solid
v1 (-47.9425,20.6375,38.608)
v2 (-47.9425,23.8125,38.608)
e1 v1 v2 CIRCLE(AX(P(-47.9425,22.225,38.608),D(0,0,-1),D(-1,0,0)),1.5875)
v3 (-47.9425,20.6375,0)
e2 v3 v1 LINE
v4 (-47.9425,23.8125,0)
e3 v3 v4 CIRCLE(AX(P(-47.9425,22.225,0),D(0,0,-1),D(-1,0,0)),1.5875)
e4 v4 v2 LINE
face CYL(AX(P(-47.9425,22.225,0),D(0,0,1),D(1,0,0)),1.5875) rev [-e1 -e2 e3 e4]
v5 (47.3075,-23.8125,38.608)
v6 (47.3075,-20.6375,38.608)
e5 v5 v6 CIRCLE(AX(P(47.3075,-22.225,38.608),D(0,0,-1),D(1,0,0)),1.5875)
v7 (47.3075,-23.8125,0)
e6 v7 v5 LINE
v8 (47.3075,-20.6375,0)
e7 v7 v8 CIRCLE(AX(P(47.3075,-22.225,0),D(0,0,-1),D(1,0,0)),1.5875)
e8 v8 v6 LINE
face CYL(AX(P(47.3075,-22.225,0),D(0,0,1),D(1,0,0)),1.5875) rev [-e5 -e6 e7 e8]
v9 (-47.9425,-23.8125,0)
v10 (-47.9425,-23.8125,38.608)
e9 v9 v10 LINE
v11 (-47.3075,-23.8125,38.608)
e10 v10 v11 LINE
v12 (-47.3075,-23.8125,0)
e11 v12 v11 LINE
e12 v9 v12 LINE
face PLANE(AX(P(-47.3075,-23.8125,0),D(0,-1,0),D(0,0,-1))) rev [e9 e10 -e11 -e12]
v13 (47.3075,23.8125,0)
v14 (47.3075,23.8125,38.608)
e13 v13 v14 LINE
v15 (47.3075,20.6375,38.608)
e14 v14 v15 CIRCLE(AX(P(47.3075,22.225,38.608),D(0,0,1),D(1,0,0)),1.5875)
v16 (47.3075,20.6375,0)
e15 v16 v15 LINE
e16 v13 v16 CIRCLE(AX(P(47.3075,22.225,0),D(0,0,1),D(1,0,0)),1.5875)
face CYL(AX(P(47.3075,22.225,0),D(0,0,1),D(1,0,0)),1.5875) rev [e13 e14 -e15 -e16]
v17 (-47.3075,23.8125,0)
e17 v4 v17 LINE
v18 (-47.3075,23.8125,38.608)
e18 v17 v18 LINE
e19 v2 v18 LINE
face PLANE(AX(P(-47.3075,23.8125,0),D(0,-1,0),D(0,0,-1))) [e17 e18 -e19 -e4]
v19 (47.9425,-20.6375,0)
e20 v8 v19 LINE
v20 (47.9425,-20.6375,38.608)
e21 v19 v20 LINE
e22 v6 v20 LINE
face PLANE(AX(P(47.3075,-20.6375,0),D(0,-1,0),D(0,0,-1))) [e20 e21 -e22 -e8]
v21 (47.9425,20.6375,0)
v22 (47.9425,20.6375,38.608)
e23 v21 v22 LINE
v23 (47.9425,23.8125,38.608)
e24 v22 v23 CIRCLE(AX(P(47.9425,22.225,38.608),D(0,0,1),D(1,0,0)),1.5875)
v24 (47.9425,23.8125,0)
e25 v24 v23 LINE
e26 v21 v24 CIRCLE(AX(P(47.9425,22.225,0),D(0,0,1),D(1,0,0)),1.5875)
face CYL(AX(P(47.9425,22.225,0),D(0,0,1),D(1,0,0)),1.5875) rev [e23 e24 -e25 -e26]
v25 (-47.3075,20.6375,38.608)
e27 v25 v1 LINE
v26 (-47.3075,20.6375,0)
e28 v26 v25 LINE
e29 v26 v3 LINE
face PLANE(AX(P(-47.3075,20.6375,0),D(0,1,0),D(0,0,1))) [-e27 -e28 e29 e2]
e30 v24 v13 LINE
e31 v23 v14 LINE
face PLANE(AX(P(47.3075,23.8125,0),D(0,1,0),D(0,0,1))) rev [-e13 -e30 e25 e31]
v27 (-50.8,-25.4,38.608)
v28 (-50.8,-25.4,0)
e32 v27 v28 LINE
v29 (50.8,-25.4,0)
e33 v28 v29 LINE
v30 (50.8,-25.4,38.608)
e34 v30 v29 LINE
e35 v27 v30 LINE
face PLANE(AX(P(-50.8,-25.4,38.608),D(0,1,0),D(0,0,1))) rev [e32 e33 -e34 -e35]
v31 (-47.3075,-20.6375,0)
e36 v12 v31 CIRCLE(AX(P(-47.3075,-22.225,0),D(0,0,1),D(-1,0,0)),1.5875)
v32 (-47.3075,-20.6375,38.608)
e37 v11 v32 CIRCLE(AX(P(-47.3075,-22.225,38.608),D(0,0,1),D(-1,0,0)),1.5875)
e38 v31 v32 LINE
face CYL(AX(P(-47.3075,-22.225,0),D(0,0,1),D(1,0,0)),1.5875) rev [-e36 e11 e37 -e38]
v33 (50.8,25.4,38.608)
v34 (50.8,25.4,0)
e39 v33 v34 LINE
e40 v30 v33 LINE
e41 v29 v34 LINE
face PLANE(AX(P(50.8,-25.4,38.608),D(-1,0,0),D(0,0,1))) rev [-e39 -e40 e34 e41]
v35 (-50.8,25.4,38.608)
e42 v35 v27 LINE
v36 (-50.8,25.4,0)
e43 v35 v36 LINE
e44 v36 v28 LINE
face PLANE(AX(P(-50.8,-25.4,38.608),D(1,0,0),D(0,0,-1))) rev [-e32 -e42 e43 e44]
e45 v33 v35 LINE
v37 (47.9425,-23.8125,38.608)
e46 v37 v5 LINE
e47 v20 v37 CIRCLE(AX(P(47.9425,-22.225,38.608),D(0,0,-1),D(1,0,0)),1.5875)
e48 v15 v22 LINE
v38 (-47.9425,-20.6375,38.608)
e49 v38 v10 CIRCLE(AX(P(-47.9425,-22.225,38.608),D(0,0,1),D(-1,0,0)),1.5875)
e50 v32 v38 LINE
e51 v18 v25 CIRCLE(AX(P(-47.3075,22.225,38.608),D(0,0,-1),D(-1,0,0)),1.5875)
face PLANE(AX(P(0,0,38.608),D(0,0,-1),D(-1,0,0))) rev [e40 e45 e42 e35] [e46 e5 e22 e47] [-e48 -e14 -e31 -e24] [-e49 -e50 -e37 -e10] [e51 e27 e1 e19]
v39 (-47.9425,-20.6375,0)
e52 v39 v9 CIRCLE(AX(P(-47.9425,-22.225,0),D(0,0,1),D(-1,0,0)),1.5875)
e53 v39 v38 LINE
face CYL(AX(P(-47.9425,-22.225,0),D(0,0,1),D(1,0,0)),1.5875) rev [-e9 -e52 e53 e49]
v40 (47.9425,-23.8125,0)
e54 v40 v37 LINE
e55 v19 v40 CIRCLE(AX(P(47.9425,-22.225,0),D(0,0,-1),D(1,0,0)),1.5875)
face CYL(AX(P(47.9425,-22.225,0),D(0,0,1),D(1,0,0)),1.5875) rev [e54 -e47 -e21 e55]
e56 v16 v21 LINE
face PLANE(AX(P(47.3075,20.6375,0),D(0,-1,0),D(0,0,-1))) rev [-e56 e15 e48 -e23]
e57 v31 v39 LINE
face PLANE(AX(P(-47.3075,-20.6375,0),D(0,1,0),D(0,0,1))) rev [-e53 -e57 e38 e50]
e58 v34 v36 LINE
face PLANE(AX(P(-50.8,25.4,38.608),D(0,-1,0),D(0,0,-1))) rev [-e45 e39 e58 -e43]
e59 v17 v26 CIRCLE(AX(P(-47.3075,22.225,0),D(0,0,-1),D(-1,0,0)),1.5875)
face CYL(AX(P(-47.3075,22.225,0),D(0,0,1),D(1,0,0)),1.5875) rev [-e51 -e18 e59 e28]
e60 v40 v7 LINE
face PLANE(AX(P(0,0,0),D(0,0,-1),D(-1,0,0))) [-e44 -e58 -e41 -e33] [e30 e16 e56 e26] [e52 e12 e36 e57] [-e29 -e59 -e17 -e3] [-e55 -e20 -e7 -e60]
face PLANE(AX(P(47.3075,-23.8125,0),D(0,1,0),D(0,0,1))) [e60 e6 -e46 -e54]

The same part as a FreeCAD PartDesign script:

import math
import FreeCAD as App
import Part
import Sketcher

V = App.Vector
Q = App.Units.Quantity


def add_polygon(sketch, points):
    """Adds a closed chain of lines whose ends are joined by coincident constraints."""
    first, n = sketch.GeometryCount, len(points)
    for a, b in zip(points, points[1:] + points[:1]):
        sketch.addGeometry(Part.LineSegment(App.Vector(*a, 0), App.Vector(*b, 0)), False)
    for i in range(n):
        sketch.addConstraint(Sketcher.Constraint("Coincident", first + i, 2, first + (i + 1) % n, 1))

doc = App.newDocument("Part")
body = doc.addObject("PartDesign::Body", "Body")

# Sketch on XY plane
sketch1 = body.newObject("Sketcher::SketchObject", "Sketch")
sketch1.AttachmentSupport = (doc.getObject("XY_Plane"), [""])
sketch1.MapMode = "FlatFace"
add_polygon(sketch1, [(-51, 25), (-51, -25), (51, -25), (51, 25)])  # lines 0-3
sketch1.addConstraint([
    Sketcher.Constraint("Vertical", 0),
    Sketcher.Constraint("Horizontal", 1),
    Sketcher.Constraint("Vertical", 2),
    Sketcher.Constraint("Horizontal", 3),
    Sketcher.Constraint("Symmetric", 0, 2, 2, 2, -1, 1),
    Sketcher.Constraint("DistanceX", 1, 1, 1, 2, Q("4 in")),
    Sketcher.Constraint("DistanceY", 0, 2, 0, 1, Q("2 in")),
])
pad1 = body.newObject("PartDesign::Pad", "Pad")
pad1.Profile = sketch1
pad1.Length = Q("1.52 in")

# Sketch on XY plane
sketch2 = body.newObject("Sketcher::SketchObject", "Sketch001")
sketch2.AttachmentSupport = (doc.getObject("XY_Plane"), [""])
sketch2.MapMode = "FlatFace"
sketch2.AttachmentOffset = App.Placement(V(0, 0, 1.52 * 25.4), App.Rotation())
sketch2.addGeometry([
    Part.LineSegment(V(47.9, 23.8, 0), V(47.3, 23.8, 0)),
    Part.ArcOfCircle(Part.Circle(V(47.3, 22.2, 0), V(0, 0, 1), 1.6), math.radians(90), math.radians(270)),
    Part.LineSegment(V(47.3, 20.6, 0), V(47.9, 20.6, 0)),
    Part.ArcOfCircle(Part.Circle(V(47.9, 22.2, 0), V(0, 0, 1), 1.6), math.radians(-90), math.radians(90)),
], False)
sketch2.addConstraint([
    Sketcher.Constraint("Tangent", 0, 2, 1, 1),
    Sketcher.Constraint("Tangent", 1, 2, 2, 1),
    Sketcher.Constraint("Tangent", 2, 2, 3, 1),
    Sketcher.Constraint("Tangent", 3, 2, 0, 1),
    Sketcher.Constraint("Horizontal", 0),
    Sketcher.Constraint("Horizontal", 2),
    Sketcher.Constraint("Radius", 1, Q("0.0625 in")),
    Sketcher.Constraint("DistanceX", 0, 2, 0, 1, Q("0.025 in")),
    Sketcher.Constraint("DistanceY", -1, 1, 1, 3, Q("0.875 in")),
    Sketcher.Constraint("DistanceX", -1, 1, 1, 3, Q("1.8625 in")),
])
pocket1 = body.newObject("PartDesign::Pocket", "Pocket")
pocket1.Profile = sketch2
pocket1.Type = "ThroughAll"
doc.recompute()

mirrored = body.newObject("PartDesign::Mirrored", "Mirrored")
mirrored.Originals = [pocket1]
mirrored.MirrorPlane = (doc.getObject("XZ_Plane"), [""])
body.Tip = mirrored
doc.recompute()

mirrored2 = body.newObject("PartDesign::Mirrored", "Mirrored001")
mirrored2.Originals = [pocket1]
mirrored2.MirrorPlane = (doc.getObject("YZ_Plane"), [""])
body.Tip = mirrored2

# Sketch on XY plane
sketch3 = body.newObject("Sketcher::SketchObject", "Sketch002")
sketch3.AttachmentSupport = (doc.getObject("XY_Plane"), [""])
sketch3.MapMode = "FlatFace"
sketch3.AttachmentOffset = App.Placement(V(0, 0, 1.52 * 25.4), App.Rotation())
sketch3.addGeometry([
    Part.LineSegment(V(-47.9, -23.8, 0), V(-47.3, -23.8, 0)),
    Part.ArcOfCircle(Part.Circle(V(-47.3, -22.2, 0), V(0, 0, 1), 1.6), math.radians(-90), math.radians(90)),
    Part.LineSegment(V(-47.3, -20.6, 0), V(-47.9, -20.6, 0)),
    Part.ArcOfCircle(Part.Circle(V(-47.9, -22.2, 0), V(0, 0, 1), 1.6), math.radians(90), math.radians(270)),
], False)
sketch3.addConstraint([
    Sketcher.Constraint("Tangent", 0, 2, 1, 1),
    Sketcher.Constraint("Tangent", 1, 2, 2, 1),
    Sketcher.Constraint("Tangent", 2, 2, 3, 1),
    Sketcher.Constraint("Tangent", 3, 2, 0, 1),
    Sketcher.Constraint("Horizontal", 0),
    Sketcher.Constraint("Horizontal", 2),
    Sketcher.Constraint("Radius", 1, Q("0.0625 in")),
    Sketcher.Constraint("DistanceX", 0, 1, 0, 2, Q("0.025 in")),
    Sketcher.Constraint("DistanceY", 1, 3, -1, 1, Q("0.875 in")),
    Sketcher.Constraint("DistanceX", 1, 3, -1, 1, Q("1.8625 in")),
])
pocket2 = body.newObject("PartDesign::Pocket", "Pocket001")
pocket2.Profile = sketch3
pocket2.Type = "ThroughAll"

doc.recompute()
